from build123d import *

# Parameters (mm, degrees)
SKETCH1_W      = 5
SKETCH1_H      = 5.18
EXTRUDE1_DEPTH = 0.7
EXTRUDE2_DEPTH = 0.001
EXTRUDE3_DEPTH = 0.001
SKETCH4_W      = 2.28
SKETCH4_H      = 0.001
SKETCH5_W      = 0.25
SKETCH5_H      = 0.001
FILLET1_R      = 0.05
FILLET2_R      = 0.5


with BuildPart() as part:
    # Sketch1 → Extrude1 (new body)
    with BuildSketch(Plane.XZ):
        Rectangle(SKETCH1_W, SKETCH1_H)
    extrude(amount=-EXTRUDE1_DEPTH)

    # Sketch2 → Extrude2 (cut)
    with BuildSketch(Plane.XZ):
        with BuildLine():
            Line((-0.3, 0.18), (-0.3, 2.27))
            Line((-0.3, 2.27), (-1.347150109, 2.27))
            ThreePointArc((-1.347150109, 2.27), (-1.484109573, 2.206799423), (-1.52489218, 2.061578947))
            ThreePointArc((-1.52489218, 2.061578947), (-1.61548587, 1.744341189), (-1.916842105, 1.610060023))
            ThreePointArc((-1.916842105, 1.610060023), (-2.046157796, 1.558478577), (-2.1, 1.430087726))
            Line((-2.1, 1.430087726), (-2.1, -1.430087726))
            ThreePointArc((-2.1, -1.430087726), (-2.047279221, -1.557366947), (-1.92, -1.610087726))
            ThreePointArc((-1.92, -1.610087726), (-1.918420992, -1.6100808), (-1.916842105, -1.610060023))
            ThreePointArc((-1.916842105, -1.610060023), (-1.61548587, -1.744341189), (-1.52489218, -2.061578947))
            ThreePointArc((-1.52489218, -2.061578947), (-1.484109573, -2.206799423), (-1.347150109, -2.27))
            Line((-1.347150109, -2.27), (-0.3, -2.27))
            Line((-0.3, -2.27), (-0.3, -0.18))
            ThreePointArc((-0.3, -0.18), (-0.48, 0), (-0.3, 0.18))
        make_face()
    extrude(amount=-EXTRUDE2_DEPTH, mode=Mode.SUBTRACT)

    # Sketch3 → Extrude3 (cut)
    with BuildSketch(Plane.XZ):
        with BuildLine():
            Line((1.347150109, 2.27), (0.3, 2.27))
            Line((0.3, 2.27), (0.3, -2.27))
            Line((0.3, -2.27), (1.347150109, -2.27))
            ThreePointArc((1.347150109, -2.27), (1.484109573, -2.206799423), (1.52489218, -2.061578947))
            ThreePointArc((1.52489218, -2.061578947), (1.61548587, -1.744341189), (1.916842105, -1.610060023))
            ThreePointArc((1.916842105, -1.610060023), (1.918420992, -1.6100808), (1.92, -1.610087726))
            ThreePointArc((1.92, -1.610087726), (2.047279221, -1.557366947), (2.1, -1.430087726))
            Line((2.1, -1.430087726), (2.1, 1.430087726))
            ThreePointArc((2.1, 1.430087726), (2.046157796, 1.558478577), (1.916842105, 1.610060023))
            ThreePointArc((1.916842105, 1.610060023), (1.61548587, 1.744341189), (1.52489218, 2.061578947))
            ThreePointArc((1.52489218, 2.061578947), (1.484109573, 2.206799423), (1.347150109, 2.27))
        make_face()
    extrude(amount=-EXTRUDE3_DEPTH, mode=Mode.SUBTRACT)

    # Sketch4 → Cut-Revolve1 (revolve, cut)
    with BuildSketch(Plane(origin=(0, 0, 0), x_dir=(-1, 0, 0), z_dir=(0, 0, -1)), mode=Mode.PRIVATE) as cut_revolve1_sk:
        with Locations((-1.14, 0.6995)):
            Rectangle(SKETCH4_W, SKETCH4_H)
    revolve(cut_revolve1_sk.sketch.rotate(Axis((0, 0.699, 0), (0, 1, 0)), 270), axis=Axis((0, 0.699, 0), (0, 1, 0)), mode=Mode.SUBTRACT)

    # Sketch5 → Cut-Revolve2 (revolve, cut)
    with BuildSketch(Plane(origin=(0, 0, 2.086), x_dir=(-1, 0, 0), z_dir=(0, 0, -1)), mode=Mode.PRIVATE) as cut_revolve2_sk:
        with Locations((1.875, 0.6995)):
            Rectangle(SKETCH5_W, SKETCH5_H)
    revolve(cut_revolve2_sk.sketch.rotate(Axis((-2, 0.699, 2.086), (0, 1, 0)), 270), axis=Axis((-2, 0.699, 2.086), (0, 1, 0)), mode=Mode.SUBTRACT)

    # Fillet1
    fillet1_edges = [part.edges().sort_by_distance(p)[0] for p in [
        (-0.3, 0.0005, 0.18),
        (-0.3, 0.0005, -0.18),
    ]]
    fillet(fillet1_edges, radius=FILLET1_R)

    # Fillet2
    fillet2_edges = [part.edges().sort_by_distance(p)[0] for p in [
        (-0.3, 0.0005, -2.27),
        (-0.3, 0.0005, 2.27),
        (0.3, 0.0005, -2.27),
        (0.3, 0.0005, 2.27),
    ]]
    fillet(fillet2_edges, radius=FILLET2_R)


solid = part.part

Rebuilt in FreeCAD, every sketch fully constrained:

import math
import FreeCAD as App
import Part
import Sketcher
from FreeCAD import Vector


def edges_at(feature, points):
    """Names of the edges that pass closest to the given points."""
    edges = feature.Shape.Edges
    near = lambda p: min(range(len(edges)), key=lambda i: edges[i].distToShape(Part.Vertex(*p))[0])
    return sorted({f"Edge{near(p) + 1}" for p in points})

doc = App.newDocument("Part")
body = doc.addObject("PartDesign::Body", "Body")

# Sketch on XZ plane
sketch1 = body.newObject("Sketcher::SketchObject", "Sketch")
sketch1.AttachmentSupport = (doc.getObject("XZ_Plane"), [""])
sketch1.MapMode = "FlatFace"
sketch1.addGeometry(Part.LineSegment(Vector(-2, 3, 0), Vector(-2, -3, 0)), False)
sketch1.addGeometry(Part.LineSegment(Vector(-2, -3, 0), Vector(2, -3, 0)), False)
sketch1.addGeometry(Part.LineSegment(Vector(2, -3, 0), Vector(2, 3, 0)), False)
sketch1.addGeometry(Part.LineSegment(Vector(2, 3, 0), Vector(-2, 3, 0)), False)
sketch1.addConstraint(Sketcher.Constraint("Coincident", 0, 2, 1, 1))
sketch1.addConstraint(Sketcher.Constraint("Coincident", 1, 2, 2, 1))
sketch1.addConstraint(Sketcher.Constraint("Coincident", 2, 2, 3, 1))
sketch1.addConstraint(Sketcher.Constraint("Coincident", 3, 2, 0, 1))
sketch1.addConstraint(Sketcher.Constraint("Vertical", 0))
sketch1.addConstraint(Sketcher.Constraint("Horizontal", 1))
sketch1.addConstraint(Sketcher.Constraint("Vertical", 2))
sketch1.addConstraint(Sketcher.Constraint("Horizontal", 3))
sketch1.addConstraint(Sketcher.Constraint("Symmetric", 0, 2, 2, 2, -1, 1))
sketch1.addConstraint(Sketcher.Constraint("DistanceX", 1, 1, 1, 2, 5.0))
sketch1.addConstraint(Sketcher.Constraint("DistanceY", 0, 2, 0, 1, 5.18))
pad1 = body.newObject("PartDesign::Pad", "Pad")
pad1.Profile = sketch1
pad1.Length = 0.7
pad1.Reversed = True

# Sketch on XZ plane
sketch2 = body.newObject("Sketcher::SketchObject", "Sketch001")
sketch2.AttachmentSupport = (doc.getObject("XZ_Plane"), [""])
sketch2.MapMode = "FlatFace"
sketch2.addGeometry(Part.LineSegment(Vector(-0.3, 0.18, 0), Vector(-0.3, 2.27, 0)), False)
sketch2.addGeometry(Part.LineSegment(Vector(-0.3, 2.27, 0), Vector(-1.3472, 2.27, 0)), False)
sketch2.addGeometry(Part.ArcOfCircle(Part.Circle(Vector(-1.3472, 2.09, 0), Vector(0, 0, 1), 0.18), math.radians(90), math.radians(189)), False)
sketch2.addGeometry(Part.ArcOfCircle(Part.Circle(Vector(-1.91, 2, 0), Vector(0, 0, 1), 0.39), math.radians(-91), math.radians(9)), False)
sketch2.addGeometry(Part.ArcOfCircle(Part.Circle(Vector(-1.92, 1.4301, 0), Vector(0, 0, 1), 0.18), math.radians(89), math.radians(180)), False)
sketch2.addGeometry(Part.LineSegment(Vector(-2.1, 1.4301, 0), Vector(-2.1, -1.4301, 0)), False)
sketch2.addGeometry(Part.ArcOfCircle(Part.Circle(Vector(-1.92, -1.4301, 0), Vector(0, 0, 1), 0.18), math.radians(180), math.radians(270)), False)
sketch2.addGeometry(Part.ArcOfCircle(Part.Circle(Vector(-1.92, -1.4301, 0), Vector(0, 0, 1), 0.18), math.radians(-90), math.radians(-88.99)), False)
sketch2.addGeometry(Part.ArcOfCircle(Part.Circle(Vector(-1.91, -2, 0), Vector(0, 0, 1), 0.39), math.radians(-9), math.radians(91)), False)
sketch2.addGeometry(Part.ArcOfCircle(Part.Circle(Vector(-1.3472, -2.09, 0), Vector(0, 0, 1), 0.18), math.radians(171), math.radians(270)), False)
sketch2.addGeometry(Part.LineSegment(Vector(-1.3472, -2.27, 0), Vector(-0.3, -2.27, 0)), False)
sketch2.addGeometry(Part.LineSegment(Vector(-0.3, -2.27, 0), Vector(-0.3, -0.18, 0)), False)
sketch2.addGeometry(Part.ArcOfCircle(Part.Circle(Vector(-0.3, 0, 0), Vector(0, 0, 1), 0.18), math.radians(90), math.radians(270)), False)
sketch2.addConstraint(Sketcher.Constraint("Coincident", 0, 2, 1, 1))
sketch2.addConstraint(Sketcher.Constraint("Tangent", 1, 2, 2, 1))
sketch2.addConstraint(Sketcher.Constraint("Tangent", 2, 2, 3, 2))
sketch2.addConstraint(Sketcher.Constraint("Tangent", 3, 1, 4, 1))
sketch2.addConstraint(Sketcher.Constraint("Tangent", 4, 2, 5, 1))
sketch2.addConstraint(Sketcher.Constraint("Tangent", 5, 2, 6, 1))
sketch2.addConstraint(Sketcher.Constraint("Tangent", 6, 2, 7, 1))
sketch2.addConstraint(Sketcher.Constraint("Tangent", 7, 2, 8, 2))
sketch2.addConstraint(Sketcher.Constraint("Tangent", 8, 1, 9, 1))
sketch2.addConstraint(Sketcher.Constraint("Tangent", 9, 2, 10, 1))
sketch2.addConstraint(Sketcher.Constraint("Coincident", 10, 2, 11, 1))
sketch2.addConstraint(Sketcher.Constraint("Coincident", 11, 2, 12, 2))
sketch2.addConstraint(Sketcher.Constraint("Coincident", 12, 1, 0, 1))
sketch2.addConstraint(Sketcher.Constraint("Vertical", 0))
sketch2.addConstraint(Sketcher.Constraint("Horizontal", 1))
sketch2.addConstraint(Sketcher.Constraint("Vertical", 5))
sketch2.addConstraint(Sketcher.Constraint("Horizontal", 10))
sketch2.addConstraint(Sketcher.Constraint("Vertical", 11))
sketch2.addConstraint(Sketcher.Constraint("Equal", 2, 4))
sketch2.addConstraint(Sketcher.Constraint("Equal", 4, 6))
sketch2.addConstraint(Sketcher.Constraint("Equal", 3, 8))
sketch2.addConstraint(Sketcher.Constraint("Equal", 6, 9))
sketch2.addConstraint(Sketcher.Constraint("Equal", 9, 12))
sketch2.addConstraint(Sketcher.Constraint("Symmetric", 3, 3, 8, 3, -1))
sketch2.addConstraint(Sketcher.Constraint("Symmetric", 0, 2, 10, 2, -1))
sketch2.addConstraint(Sketcher.Constraint("PointOnObject", 12, 3, -1))
sketch2.addConstraint(Sketcher.Constraint("Vertical", 12, 3, 0, 2))
sketch2.addConstraint(Sketcher.Constraint("Vertical", 7, 3, 6, 2))
sketch2.addConstraint(Sketcher.Constraint("Vertical", 3, 1, 7, 2))
sketch2.addConstraint(Sketcher.Constraint("Radius", 2, 0.18))
sketch2.addConstraint(Sketcher.Constraint("Radius", 3, 0.39))
sketch2.addConstraint(Sketcher.Constraint("DistanceY", -1, 1, 3, 3, 2.0))
sketch2.addConstraint(Sketcher.Constraint("DistanceY", 0, 1, 0, 2, 2.09))
sketch2.addConstraint(Sketcher.Constraint("DistanceX", 12, 3, -1, 1, 0.3))
sketch2.addConstraint(Sketcher.Constraint("DistanceX", 4, 2, -1, 1, 2.1))
sketch2.addConstraint(Sketcher.Constraint("DistanceX", 3, 3, -1, 1, 1.91))
pocket1 = body.newObject("PartDesign::Pocket", "Pocket")
pocket1.Profile = sketch2
pocket1.Length = 0.001

# Sketch on XZ plane
sketch3 = body.newObject("Sketcher::SketchObject", "Sketch002")
sketch3.AttachmentSupport = (doc.getObject("XZ_Plane"), [""])
sketch3.MapMode = "FlatFace"
sketch3.addGeometry(Part.LineSegment(Vector(1.3472, 2.27, 0), Vector(0.3, 2.27, 0)), False)
sketch3.addGeometry(Part.LineSegment(Vector(0.3, 2.27, 0), Vector(0.3, -2.27, 0)), False)
sketch3.addGeometry(Part.LineSegment(Vector(0.3, -2.27, 0), Vector(1.3472, -2.27, 0)), False)
sketch3.addGeometry(Part.ArcOfCircle(Part.Circle(Vector(1.3472, -2.09, 0), Vector(0, 0, 1), 0.18), math.radians(-90), math.radians(9)), False)
sketch3.addGeometry(Part.ArcOfCircle(Part.Circle(Vector(1.91, -2, 0), Vector(0, 0, 1), 0.39), math.radians(89), math.radians(189)), False)
sketch3.addGeometry(Part.ArcOfCircle(Part.Circle(Vector(1.92, -1.4301, 0), Vector(0, 0, 1), 0.18), math.radians(-91.01), math.radians(-90)), False)
sketch3.addGeometry(Part.ArcOfCircle(Part.Circle(Vector(1.92, -1.4301, 0), Vector(0, 0, 1), 0.18), math.radians(-90), math.radians(0)), False)
sketch3.addGeometry(Part.LineSegment(Vector(2.1, -1.4301, 0), Vector(2.1, 1.4301, 0)), False)
sketch3.addGeometry(Part.ArcOfCircle(Part.Circle(Vector(1.92, 1.4301, 0), Vector(0, 0, 1), 0.18), math.radians(0), math.radians(91)), False)
sketch3.addGeometry(Part.ArcOfCircle(Part.Circle(Vector(1.91, 2, 0), Vector(0, 0, 1), 0.39), math.radians(171), math.radians(271)), False)
sketch3.addGeometry(Part.ArcOfCircle(Part.Circle(Vector(1.3472, 2.09, 0), Vector(0, 0, 1), 0.18), math.radians(-9), math.radians(90)), False)
sketch3.addConstraint(Sketcher.Constraint("Coincident", 0, 2, 1, 1))
sketch3.addConstraint(Sketcher.Constraint("Coincident", 1, 2, 2, 1))
sketch3.addConstraint(Sketcher.Constraint("Tangent", 2, 2, 3, 1))
sketch3.addConstraint(Sketcher.Constraint("Tangent", 3, 2, 4, 2))
sketch3.addConstraint(Sketcher.Constraint("Tangent", 4, 1, 5, 1))
sketch3.addConstraint(Sketcher.Constraint("Tangent", 5, 2, 6, 1))
sketch3.addConstraint(Sketcher.Constraint("Tangent", 6, 2, 7, 1))
sketch3.addConstraint(Sketcher.Constraint("Tangent", 7, 2, 8, 1))
sketch3.addConstraint(Sketcher.Constraint("Tangent", 8, 2, 9, 2))
sketch3.addConstraint(Sketcher.Constraint("Tangent", 9, 1, 10, 1))
sketch3.addConstraint(Sketcher.Constraint("Tangent", 10, 2, 0, 1))
sketch3.addConstraint(Sketcher.Constraint("Horizontal", 0))
sketch3.addConstraint(Sketcher.Constraint("Vertical", 1))
sketch3.addConstraint(Sketcher.Constraint("Horizontal", 2))
sketch3.addConstraint(Sketcher.Constraint("Vertical", 7))
sketch3.addConstraint(Sketcher.Constraint("Equal", 3, 6))
sketch3.addConstraint(Sketcher.Constraint("Equal", 6, 8))
sketch3.addConstraint(Sketcher.Constraint("Equal", 4, 9))
sketch3.addConstraint(Sketcher.Constraint("Equal", 8, 10))
sketch3.addConstraint(Sketcher.Constraint("Symmetric", 4, 3, 9, 3, -1))
sketch3.addConstraint(Sketcher.Constraint("Vertical", 3, 3, 10, 3))
sketch3.addConstraint(Sketcher.Constraint("Vertical", 8, 3, 5, 2))
sketch3.addConstraint(Sketcher.Constraint("Vertical", 4, 1, 8, 2))
sketch3.addConstraint(Sketcher.Constraint("Radius", 3, 0.18))
sketch3.addConstraint(Sketcher.Constraint("Radius", 4, 0.39))
sketch3.addConstraint(Sketcher.Constraint("DistanceY", 4, 3, -1, 1, 2.0))
sketch3.addConstraint(Sketcher.Constraint("DistanceY", 1, 2, 1, 1, 4.54))
sketch3.addConstraint(Sketcher.Constraint("DistanceX", -1, 1, 0, 2, 0.3))
sketch3.addConstraint(Sketcher.Constraint("DistanceX", -1, 1, 6, 2, 2.1))
sketch3.addConstraint(Sketcher.Constraint("DistanceX", -1, 1, 4, 3, 1.91))
pocket2 = body.newObject("PartDesign::Pocket", "Pocket001")
pocket2.Profile = sketch3
pocket2.Length = 0.001

# Sketch on XY plane
sketch4 = body.newObject("Sketcher::SketchObject", "Sketch003")
sketch4.AttachmentSupport = (doc.getObject("XY_Plane"), [""])
sketch4.MapMode = "FlatFace"
sketch4.addGeometry(Part.LineSegment(Vector(2.28, 0.7, 0), Vector(2.28, 0.699, 0)), False)
sketch4.addGeometry(Part.LineSegment(Vector(2.28, 0.699, 0), Vector(0, 0.699, 0)), False)
sketch4.addGeometry(Part.LineSegment(Vector(0, 0.699, 0), Vector(0, 0.7, 0)), False)
sketch4.addGeometry(Part.LineSegment(Vector(0, 0.7, 0), Vector(2.28, 0.7, 0)), False)
sketch4.addConstraint(Sketcher.Constraint("Coincident", 0, 2, 1, 1))
sketch4.addConstraint(Sketcher.Constraint("Coincident", 1, 2, 2, 1))
sketch4.addConstraint(Sketcher.Constraint("Coincident", 2, 2, 3, 1))
sketch4.addConstraint(Sketcher.Constraint("Coincident", 3, 2, 0, 1))
sketch4.addConstraint(Sketcher.Constraint("Vertical", 0))
sketch4.addConstraint(Sketcher.Constraint("Horizontal", 1))
sketch4.addConstraint(Sketcher.Constraint("Vertical", 2))
sketch4.addConstraint(Sketcher.Constraint("Horizontal", 3))
sketch4.addConstraint(Sketcher.Constraint("PointOnObject", 1, 2, -2))
sketch4.addConstraint(Sketcher.Constraint("DistanceX", 1, 2, 1, 1, 2.28))
sketch4.addConstraint(Sketcher.Constraint("DistanceY", -1, 1, 2, 2, 0.7))
sketch4.addConstraint(Sketcher.Constraint("DistanceY", 0, 2, 0, 1, 0.001))
groove = body.newObject("PartDesign::Groove", "Groove")
groove.Profile = sketch4
groove.ReferenceAxis = (sketch4, ["V_Axis"])
groove.Angle = 360

# Sketch on XY plane
sketch5 = body.newObject("Sketcher::SketchObject", "Sketch004")
sketch5.AttachmentSupport = (doc.getObject("XY_Plane"), [""])
sketch5.MapMode = "FlatFace"
sketch5.AttachmentOffset = App.Placement(Vector(0, 0, 2.086), App.Rotation())
sketch5.addGeometry(Part.LineSegment(Vector(-1.75, 0.7, 0), Vector(-1.75, 0.699, 0)), False)
sketch5.addGeometry(Part.LineSegment(Vector(-1.75, 0.699, 0), Vector(-2, 0.699, 0)), False)
sketch5.addGeometry(Part.LineSegment(Vector(-2, 0.699, 0), Vector(-2, 0.7, 0)), False)
sketch5.addGeometry(Part.LineSegment(Vector(-2, 0.7, 0), Vector(-1.75, 0.7, 0)), False)
sketch5.addGeometry(Part.LineSegment(Vector(-2, 0.699, 0), Vector(-2, 0.7, 0)), True)  # axis
sketch5.addConstraint(Sketcher.Constraint("Coincident", 0, 2, 1, 1))
sketch5.addConstraint(Sketcher.Constraint("Coincident", 1, 2, 2, 1))
sketch5.addConstraint(Sketcher.Constraint("Coincident", 2, 2, 3, 1))
sketch5.addConstraint(Sketcher.Constraint("Coincident", 3, 2, 0, 1))
sketch5.addConstraint(Sketcher.Constraint("Vertical", 0))
sketch5.addConstraint(Sketcher.Constraint("Horizontal", 1))
sketch5.addConstraint(Sketcher.Constraint("Vertical", 2))
sketch5.addConstraint(Sketcher.Constraint("Horizontal", 3))
sketch5.addConstraint(Sketcher.Constraint("Vertical", 4))
sketch5.addConstraint(Sketcher.Constraint("Coincident", 4, 1, 1, 2))
sketch5.addConstraint(Sketcher.Constraint("Horizontal", 3, 2, 4, 2))
sketch5.addConstraint(Sketcher.Constraint("DistanceX", 1, 2, -1, 1, 2.0))
sketch5.addConstraint(Sketcher.Constraint("DistanceX", 1, 2, 1, 1, 0.25))
sketch5.addConstraint(Sketcher.Constraint("DistanceY", -1, 1, 2, 2, 0.7))
sketch5.addConstraint(Sketcher.Constraint("DistanceY", 0, 2, 0, 1, 0.001))
groove2 = body.newObject("PartDesign::Groove", "Groove001")
groove2.Profile = sketch5
groove2.ReferenceAxis = (sketch5, ["Axis0"])
groove2.Angle = 360
doc.recompute()

fillet = body.newObject("PartDesign::Fillet", "Fillet")
fillet.Base = (groove2, edges_at(groove2, [(-0.3, 0.001, 0.18), (-0.3, 0.001, -0.18)]))
fillet.Radius = 0.05
doc.recompute()

fillet2 = body.newObject("PartDesign::Fillet", "Fillet001")
fillet2.Base = (fillet, edges_at(fillet, [
    (-0.3, 0.001, -2.27),
    (-0.3, 0.001, 2.27),
    (0.3, 0.001, -2.27),
    (0.3, 0.001, 2.27),
]))
fillet2.Radius = 0.5

doc.recompute()
